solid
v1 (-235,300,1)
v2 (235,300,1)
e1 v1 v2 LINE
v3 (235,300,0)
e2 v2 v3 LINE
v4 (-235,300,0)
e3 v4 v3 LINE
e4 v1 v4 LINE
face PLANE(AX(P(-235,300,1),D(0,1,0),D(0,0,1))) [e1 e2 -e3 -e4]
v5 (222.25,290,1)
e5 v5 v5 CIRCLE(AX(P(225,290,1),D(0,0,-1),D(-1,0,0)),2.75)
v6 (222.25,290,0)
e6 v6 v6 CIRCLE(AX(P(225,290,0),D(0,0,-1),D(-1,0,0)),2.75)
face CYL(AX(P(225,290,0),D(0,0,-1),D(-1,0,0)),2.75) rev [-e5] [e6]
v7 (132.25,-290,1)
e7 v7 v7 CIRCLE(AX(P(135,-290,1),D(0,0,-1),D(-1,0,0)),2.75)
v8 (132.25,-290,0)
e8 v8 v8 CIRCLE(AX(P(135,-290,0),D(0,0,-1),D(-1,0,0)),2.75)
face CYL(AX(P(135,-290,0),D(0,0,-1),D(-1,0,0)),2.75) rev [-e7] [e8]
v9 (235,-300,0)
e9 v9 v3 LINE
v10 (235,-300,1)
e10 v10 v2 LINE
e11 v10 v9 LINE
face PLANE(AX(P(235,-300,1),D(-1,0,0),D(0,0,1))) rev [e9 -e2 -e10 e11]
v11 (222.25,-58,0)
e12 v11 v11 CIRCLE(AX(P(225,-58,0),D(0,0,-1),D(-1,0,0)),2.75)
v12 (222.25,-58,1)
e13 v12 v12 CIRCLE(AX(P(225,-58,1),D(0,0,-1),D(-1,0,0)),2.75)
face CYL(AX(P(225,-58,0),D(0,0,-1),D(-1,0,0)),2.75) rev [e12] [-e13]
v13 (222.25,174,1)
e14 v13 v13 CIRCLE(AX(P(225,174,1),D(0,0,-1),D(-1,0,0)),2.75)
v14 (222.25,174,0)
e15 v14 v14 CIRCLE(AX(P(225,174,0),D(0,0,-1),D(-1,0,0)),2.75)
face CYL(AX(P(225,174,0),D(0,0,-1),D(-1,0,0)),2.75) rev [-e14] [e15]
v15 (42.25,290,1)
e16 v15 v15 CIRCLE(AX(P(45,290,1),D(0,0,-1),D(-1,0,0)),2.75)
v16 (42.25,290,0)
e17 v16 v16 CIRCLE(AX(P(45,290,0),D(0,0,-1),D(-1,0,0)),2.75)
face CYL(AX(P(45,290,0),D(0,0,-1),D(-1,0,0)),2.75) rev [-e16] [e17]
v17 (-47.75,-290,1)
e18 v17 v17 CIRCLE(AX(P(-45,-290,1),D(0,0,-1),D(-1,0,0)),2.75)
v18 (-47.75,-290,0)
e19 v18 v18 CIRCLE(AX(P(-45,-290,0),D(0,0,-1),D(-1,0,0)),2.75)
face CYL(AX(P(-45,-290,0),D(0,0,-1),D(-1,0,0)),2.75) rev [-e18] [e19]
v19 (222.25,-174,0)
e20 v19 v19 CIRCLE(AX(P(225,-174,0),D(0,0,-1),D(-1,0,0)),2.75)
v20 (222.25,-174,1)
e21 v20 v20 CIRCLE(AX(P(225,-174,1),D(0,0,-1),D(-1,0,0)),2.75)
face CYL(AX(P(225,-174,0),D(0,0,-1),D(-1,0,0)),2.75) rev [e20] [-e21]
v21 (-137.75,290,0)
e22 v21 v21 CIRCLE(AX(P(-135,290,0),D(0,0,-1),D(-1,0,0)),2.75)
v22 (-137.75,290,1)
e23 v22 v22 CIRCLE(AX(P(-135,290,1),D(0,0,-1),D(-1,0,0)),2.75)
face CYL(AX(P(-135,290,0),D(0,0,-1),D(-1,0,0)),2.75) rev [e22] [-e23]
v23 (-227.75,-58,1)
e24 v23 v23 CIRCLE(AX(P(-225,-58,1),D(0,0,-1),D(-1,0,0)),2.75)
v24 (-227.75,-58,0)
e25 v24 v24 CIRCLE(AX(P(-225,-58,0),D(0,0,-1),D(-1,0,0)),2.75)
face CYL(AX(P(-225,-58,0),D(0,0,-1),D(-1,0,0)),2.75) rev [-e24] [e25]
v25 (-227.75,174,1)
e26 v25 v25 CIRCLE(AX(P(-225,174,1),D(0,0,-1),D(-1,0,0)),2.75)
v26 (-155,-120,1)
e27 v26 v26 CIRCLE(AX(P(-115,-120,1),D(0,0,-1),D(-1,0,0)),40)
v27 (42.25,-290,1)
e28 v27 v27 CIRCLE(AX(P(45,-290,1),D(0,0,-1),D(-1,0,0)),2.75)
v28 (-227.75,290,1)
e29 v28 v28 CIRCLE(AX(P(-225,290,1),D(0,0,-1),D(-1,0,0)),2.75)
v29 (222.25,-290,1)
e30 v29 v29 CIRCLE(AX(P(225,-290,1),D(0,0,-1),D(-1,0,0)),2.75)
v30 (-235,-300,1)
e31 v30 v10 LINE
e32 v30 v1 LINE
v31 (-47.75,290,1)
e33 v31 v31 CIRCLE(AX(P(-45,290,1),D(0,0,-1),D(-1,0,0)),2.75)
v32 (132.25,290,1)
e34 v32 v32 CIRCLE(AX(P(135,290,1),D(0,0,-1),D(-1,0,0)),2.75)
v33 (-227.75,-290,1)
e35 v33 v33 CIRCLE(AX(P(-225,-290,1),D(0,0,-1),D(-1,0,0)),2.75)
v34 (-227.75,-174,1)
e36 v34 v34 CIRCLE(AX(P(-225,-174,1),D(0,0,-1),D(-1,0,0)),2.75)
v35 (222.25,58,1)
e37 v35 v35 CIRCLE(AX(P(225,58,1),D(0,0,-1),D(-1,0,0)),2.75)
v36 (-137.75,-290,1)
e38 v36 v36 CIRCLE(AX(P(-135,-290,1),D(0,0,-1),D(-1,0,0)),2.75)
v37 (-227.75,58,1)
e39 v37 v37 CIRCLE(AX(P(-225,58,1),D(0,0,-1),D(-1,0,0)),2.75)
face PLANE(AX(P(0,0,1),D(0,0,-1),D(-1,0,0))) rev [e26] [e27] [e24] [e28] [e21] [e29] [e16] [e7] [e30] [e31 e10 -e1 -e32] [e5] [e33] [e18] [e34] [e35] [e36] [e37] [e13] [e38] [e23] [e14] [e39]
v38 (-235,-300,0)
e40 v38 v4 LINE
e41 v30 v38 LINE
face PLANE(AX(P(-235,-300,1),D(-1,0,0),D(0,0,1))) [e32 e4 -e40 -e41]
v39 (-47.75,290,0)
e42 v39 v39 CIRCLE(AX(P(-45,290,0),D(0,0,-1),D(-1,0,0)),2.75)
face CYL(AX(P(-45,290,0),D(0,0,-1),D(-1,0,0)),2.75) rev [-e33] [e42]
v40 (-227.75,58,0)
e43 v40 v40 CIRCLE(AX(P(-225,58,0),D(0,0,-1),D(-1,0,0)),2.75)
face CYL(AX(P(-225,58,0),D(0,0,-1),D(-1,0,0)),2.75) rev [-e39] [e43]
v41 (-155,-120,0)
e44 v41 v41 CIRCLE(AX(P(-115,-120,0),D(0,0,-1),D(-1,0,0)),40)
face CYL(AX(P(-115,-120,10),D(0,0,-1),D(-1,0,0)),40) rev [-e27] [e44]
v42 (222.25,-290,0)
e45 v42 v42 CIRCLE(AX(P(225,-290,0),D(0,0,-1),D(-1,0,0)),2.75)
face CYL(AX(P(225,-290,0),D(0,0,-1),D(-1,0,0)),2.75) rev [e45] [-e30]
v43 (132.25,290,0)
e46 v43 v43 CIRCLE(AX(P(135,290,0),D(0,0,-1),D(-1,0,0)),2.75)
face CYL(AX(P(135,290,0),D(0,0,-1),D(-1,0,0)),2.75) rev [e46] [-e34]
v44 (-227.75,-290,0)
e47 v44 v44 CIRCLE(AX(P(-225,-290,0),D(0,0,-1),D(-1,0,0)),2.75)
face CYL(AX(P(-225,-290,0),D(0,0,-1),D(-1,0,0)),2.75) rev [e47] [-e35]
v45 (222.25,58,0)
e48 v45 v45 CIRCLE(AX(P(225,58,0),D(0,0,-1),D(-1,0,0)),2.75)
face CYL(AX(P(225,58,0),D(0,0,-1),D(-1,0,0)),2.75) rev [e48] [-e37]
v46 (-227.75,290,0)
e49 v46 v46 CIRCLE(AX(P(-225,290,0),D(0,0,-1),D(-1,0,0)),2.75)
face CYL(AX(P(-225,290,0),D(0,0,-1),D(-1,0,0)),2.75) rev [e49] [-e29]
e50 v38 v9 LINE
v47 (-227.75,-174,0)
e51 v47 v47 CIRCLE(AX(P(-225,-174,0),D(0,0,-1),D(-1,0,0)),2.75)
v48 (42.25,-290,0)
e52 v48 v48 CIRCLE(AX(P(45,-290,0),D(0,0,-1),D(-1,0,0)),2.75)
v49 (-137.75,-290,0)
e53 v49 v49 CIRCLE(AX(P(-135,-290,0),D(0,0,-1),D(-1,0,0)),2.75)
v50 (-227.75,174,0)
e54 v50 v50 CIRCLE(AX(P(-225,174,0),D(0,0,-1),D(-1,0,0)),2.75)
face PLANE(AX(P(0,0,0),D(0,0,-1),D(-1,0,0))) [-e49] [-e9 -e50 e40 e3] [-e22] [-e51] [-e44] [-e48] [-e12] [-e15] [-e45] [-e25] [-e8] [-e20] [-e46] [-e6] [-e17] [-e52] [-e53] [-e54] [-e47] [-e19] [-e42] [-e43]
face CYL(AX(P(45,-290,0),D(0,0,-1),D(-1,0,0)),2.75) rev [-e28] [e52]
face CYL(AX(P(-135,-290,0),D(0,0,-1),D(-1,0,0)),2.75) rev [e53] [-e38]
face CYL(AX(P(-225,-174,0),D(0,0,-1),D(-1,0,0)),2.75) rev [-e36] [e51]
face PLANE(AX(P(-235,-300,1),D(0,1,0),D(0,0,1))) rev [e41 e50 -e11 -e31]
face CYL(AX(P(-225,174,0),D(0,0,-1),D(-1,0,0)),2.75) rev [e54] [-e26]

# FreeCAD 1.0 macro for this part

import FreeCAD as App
import Part
import Sketcher

V = App.Vector
Q = App.Units.Quantity


def add_polygon(sketch, points):
    """Adds a closed chain of lines whose ends are joined by coincident constraints."""
    first, n = sketch.GeometryCount, len(points)
    for a, b in zip(points, points[1:] + points[:1]):
        sketch.addGeometry(Part.LineSegment(App.Vector(*a, 0), App.Vector(*b, 0)), False)
    for i in range(n):
        sketch.addConstraint(Sketcher.Constraint("Coincident", first + i, 2, first + (i + 1) % n, 1))

doc = App.newDocument("Part")
params = doc.addObject("Spreadsheet::Sheet", "Params")
for row, (alias, value) in enumerate([
    ("sketch1_width", "470 mm"),
    ("sketch1_height", "600 mm"),
    ("pad1_length", "1 mm"),
    ("sketch2_diameter", "5.5 mm"),
    ("hole_diameter", "5.5 mm"),
    ("sketch3_diameter", "80 mm"),
    ("pocket1_length", "10 mm"),
], start=1):
    params.set(f"A{row}", alias)
    params.set(f"B{row}", "=" + value)
    params.setAlias(f"B{row}", alias)

body = doc.addObject("PartDesign::Body", "Body")

sketch1 = body.newObject("Sketcher::SketchObject", "Sketch")
sketch1.AttachmentSupport = (doc.getObject("XY_Plane"), [""])
sketch1.MapMode = "FlatFace"
add_polygon(sketch1, [(-235, 300), (-235, -300), (235, -300), (235, 300)])
sketch1.addConstraint([
    Sketcher.Constraint("Vertical", 0),
    Sketcher.Constraint("Horizontal", 1),
    Sketcher.Constraint("Vertical", 2),
    Sketcher.Constraint("Horizontal", 3),
    Sketcher.Constraint("Symmetric", 0, 2, 2, 2, -1, 1),
    Sketcher.Constraint("DistanceX", 1, 1, 1, 2, Q("470 mm")),
    Sketcher.Constraint("DistanceY", 0, 2, 0, 1, Q("600 mm")),
])
sketch1.setExpression("Constraints[9]", "Params.sketch1_width")
sketch1.setExpression("Constraints[10]", "Params.sketch1_height")
pad1 = body.newObject("PartDesign::Pad", "Pad")
pad1.Profile = sketch1
pad1.setExpression("Length", "Params.pad1_length")

sketch2 = body.newObject("Sketcher::SketchObject", "Sketch001")
sketch2.AttachmentSupport = (doc.getObject("XY_Plane"), [""])
sketch2.MapMode = "FlatFace"
sketch2.addGeometry([
    Part.Circle(V(225, 290, 0), V(0, 0, 1), 2.8),
    Part.Circle(V(135, 290, 0), V(0, 0, 1), 2.8),
    Part.Circle(V(45, 290, 0), V(0, 0, 1), 2.8),
    Part.Circle(V(-45, 290, 0), V(0, 0, 1), 2.8),
    Part.Circle(V(-135, 290, 0), V(0, 0, 1), 2.8),
    Part.Circle(V(-225, 290, 0), V(0, 0, 1), 2.8),
    Part.Circle(V(-225, 174, 0), V(0, 0, 1), 2.8),
    Part.Circle(V(-225, 58, 0), V(0, 0, 1), 2.8),
    Part.Circle(V(-225, -58, 0), V(0, 0, 1), 2.8),
    Part.Circle(V(-225, -174, 0), V(0, 0, 1), 2.8),
    Part.Circle(V(-225, -290, 0), V(0, 0, 1), 2.8),
    Part.Circle(V(225, 174, 0), V(0, 0, 1), 2.8),
    Part.Circle(V(225, 58, 0), V(0, 0, 1), 2.8),
    Part.Circle(V(225, -58, 0), V(0, 0, 1), 2.8),
    Part.Circle(V(225, -174, 0), V(0, 0, 1), 2.8),
    Part.Circle(V(225, -290, 0), V(0, 0, 1), 2.8),
    Part.Circle(V(135, -290, 0), V(0, 0, 1), 2.8),
    Part.Circle(V(45, -290, 0), V(0, 0, 1), 2.8),
    Part.Circle(V(-45, -290, 0), V(0, 0, 1), 2.8),
    Part.Circle(V(-135, -290, 0), V(0, 0, 1), 2.8),
], False)
sketch2.addConstraint([
    Sketcher.Constraint("Equal", 0, 1),
    Sketcher.Constraint("Equal", 1, 2),
    Sketcher.Constraint("Equal", 2, 3),
    Sketcher.Constraint("Equal", 3, 4),
    Sketcher.Constraint("Equal", 4, 5),
    Sketcher.Constraint("Equal", 5, 6),
    Sketcher.Constraint("Equal", 6, 7),
    Sketcher.Constraint("Equal", 7, 8),
    Sketcher.Constraint("Equal", 8, 9),
    Sketcher.Constraint("Equal", 9, 10),
    Sketcher.Constraint("Equal", 10, 11),
    Sketcher.Constraint("Equal", 11, 12),
    Sketcher.Constraint("Equal", 12, 13),
    Sketcher.Constraint("Equal", 13, 14),
    Sketcher.Constraint("Equal", 14, 15),
    Sketcher.Constraint("Equal", 15, 16),
    Sketcher.Constraint("Equal", 16, 17),
    Sketcher.Constraint("Equal", 17, 18),
    Sketcher.Constraint("Equal", 18, 19),
    Sketcher.Constraint("Symmetric", 0, 3, 10, 3, -1, 1),
    Sketcher.Constraint("Symmetric", 9, 3, 11, 3, -1, 1),
    Sketcher.Constraint("Symmetric", 8, 3, 12, 3, -1, 1),
    Sketcher.Constraint("Symmetric", 7, 3, 13, 3, -1, 1),
    Sketcher.Constraint("Symmetric", 6, 3, 14, 3, -1, 1),
    Sketcher.Constraint("Symmetric", 5, 3, 15, 3, -1, 1),
    Sketcher.Constraint("Symmetric", 4, 3, 16, 3, -1, 1),
    Sketcher.Constraint("Symmetric", 3, 3, 17, 3, -1, 1),
    Sketcher.Constraint("Symmetric", 2, 3, 18, 3, -1, 1),
    Sketcher.Constraint("Symmetric", 1, 3, 19, 3, -1, 1),
    Sketcher.Constraint("Symmetric", 2, 3, 3, 3, -2),
    Sketcher.Constraint("Symmetric", 1, 3, 4, 3, -2),
    Sketcher.Constraint("Symmetric", 0, 3, 5, 3, -2),
    Sketcher.Constraint("Symmetric", 6, 3, 11, 3, -2),
    Sketcher.Constraint("Symmetric", 7, 3, 12, 3, -2),
    Sketcher.Constraint("Horizontal", 0, 3, 1, 3),
    Sketcher.Constraint("Horizontal", 1, 3, 2, 3),
    Sketcher.Constraint("Vertical", 5, 3, 6, 3),
    Sketcher.Constraint("Vertical", 6, 3, 7, 3),
    Sketcher.Constraint("Diameter", 0, Q("5.5 mm")),
    Sketcher.Constraint("DistanceX", -1, 1, 0, 3, Q("225 mm")),
    Sketcher.Constraint("DistanceY", -1, 1, 0, 3, Q("290 mm")),
    Sketcher.Constraint("DistanceX", -1, 1, 1, 3, Q("135 mm")),
    Sketcher.Constraint("DistanceX", -1, 1, 2, 3, Q("45 mm")),
    Sketcher.Constraint("DistanceY", -1, 1, 6, 3, Q("174 mm")),
    Sketcher.Constraint("DistanceY", -1, 1, 7, 3, Q("58 mm")),
])
sketch2.setExpression("Constraints[38]", "Params.sketch2_diameter")
doc.recompute()
hole = body.newObject("PartDesign::Hole", "Hole")
hole.Profile = sketch2
hole.ThreadType = "None"
hole.setExpression("Diameter", "Params.hole_diameter")
hole.DepthType = "ThroughAll"
hole.Reversed = True

sketch3 = body.newObject("Sketcher::SketchObject", "Sketch002")
sketch3.AttachmentSupport = (doc.getObject("XY_Plane"), [""])
sketch3.MapMode = "FlatFace"
sketch3.addGeometry(Part.Circle(V(-115, -120, 0), V(0, 0, 1), 40), False)
sketch3.addConstraint([
    Sketcher.Constraint("Diameter", 0, Q("80 mm")),
    Sketcher.Constraint("DistanceX", 0, 3, -1, 1, Q("115 mm")),
    Sketcher.Constraint("DistanceY", 0, 3, -1, 1, Q("120 mm")),
])
sketch3.setExpression("Constraints[0]", "Params.sketch3_diameter")
pocket1 = body.newObject("PartDesign::Pocket", "Pocket")
pocket1.Profile = sketch3
pocket1.setExpression("Length", "Params.pocket1_length")
pocket1.Reversed = True

doc.recompute()
